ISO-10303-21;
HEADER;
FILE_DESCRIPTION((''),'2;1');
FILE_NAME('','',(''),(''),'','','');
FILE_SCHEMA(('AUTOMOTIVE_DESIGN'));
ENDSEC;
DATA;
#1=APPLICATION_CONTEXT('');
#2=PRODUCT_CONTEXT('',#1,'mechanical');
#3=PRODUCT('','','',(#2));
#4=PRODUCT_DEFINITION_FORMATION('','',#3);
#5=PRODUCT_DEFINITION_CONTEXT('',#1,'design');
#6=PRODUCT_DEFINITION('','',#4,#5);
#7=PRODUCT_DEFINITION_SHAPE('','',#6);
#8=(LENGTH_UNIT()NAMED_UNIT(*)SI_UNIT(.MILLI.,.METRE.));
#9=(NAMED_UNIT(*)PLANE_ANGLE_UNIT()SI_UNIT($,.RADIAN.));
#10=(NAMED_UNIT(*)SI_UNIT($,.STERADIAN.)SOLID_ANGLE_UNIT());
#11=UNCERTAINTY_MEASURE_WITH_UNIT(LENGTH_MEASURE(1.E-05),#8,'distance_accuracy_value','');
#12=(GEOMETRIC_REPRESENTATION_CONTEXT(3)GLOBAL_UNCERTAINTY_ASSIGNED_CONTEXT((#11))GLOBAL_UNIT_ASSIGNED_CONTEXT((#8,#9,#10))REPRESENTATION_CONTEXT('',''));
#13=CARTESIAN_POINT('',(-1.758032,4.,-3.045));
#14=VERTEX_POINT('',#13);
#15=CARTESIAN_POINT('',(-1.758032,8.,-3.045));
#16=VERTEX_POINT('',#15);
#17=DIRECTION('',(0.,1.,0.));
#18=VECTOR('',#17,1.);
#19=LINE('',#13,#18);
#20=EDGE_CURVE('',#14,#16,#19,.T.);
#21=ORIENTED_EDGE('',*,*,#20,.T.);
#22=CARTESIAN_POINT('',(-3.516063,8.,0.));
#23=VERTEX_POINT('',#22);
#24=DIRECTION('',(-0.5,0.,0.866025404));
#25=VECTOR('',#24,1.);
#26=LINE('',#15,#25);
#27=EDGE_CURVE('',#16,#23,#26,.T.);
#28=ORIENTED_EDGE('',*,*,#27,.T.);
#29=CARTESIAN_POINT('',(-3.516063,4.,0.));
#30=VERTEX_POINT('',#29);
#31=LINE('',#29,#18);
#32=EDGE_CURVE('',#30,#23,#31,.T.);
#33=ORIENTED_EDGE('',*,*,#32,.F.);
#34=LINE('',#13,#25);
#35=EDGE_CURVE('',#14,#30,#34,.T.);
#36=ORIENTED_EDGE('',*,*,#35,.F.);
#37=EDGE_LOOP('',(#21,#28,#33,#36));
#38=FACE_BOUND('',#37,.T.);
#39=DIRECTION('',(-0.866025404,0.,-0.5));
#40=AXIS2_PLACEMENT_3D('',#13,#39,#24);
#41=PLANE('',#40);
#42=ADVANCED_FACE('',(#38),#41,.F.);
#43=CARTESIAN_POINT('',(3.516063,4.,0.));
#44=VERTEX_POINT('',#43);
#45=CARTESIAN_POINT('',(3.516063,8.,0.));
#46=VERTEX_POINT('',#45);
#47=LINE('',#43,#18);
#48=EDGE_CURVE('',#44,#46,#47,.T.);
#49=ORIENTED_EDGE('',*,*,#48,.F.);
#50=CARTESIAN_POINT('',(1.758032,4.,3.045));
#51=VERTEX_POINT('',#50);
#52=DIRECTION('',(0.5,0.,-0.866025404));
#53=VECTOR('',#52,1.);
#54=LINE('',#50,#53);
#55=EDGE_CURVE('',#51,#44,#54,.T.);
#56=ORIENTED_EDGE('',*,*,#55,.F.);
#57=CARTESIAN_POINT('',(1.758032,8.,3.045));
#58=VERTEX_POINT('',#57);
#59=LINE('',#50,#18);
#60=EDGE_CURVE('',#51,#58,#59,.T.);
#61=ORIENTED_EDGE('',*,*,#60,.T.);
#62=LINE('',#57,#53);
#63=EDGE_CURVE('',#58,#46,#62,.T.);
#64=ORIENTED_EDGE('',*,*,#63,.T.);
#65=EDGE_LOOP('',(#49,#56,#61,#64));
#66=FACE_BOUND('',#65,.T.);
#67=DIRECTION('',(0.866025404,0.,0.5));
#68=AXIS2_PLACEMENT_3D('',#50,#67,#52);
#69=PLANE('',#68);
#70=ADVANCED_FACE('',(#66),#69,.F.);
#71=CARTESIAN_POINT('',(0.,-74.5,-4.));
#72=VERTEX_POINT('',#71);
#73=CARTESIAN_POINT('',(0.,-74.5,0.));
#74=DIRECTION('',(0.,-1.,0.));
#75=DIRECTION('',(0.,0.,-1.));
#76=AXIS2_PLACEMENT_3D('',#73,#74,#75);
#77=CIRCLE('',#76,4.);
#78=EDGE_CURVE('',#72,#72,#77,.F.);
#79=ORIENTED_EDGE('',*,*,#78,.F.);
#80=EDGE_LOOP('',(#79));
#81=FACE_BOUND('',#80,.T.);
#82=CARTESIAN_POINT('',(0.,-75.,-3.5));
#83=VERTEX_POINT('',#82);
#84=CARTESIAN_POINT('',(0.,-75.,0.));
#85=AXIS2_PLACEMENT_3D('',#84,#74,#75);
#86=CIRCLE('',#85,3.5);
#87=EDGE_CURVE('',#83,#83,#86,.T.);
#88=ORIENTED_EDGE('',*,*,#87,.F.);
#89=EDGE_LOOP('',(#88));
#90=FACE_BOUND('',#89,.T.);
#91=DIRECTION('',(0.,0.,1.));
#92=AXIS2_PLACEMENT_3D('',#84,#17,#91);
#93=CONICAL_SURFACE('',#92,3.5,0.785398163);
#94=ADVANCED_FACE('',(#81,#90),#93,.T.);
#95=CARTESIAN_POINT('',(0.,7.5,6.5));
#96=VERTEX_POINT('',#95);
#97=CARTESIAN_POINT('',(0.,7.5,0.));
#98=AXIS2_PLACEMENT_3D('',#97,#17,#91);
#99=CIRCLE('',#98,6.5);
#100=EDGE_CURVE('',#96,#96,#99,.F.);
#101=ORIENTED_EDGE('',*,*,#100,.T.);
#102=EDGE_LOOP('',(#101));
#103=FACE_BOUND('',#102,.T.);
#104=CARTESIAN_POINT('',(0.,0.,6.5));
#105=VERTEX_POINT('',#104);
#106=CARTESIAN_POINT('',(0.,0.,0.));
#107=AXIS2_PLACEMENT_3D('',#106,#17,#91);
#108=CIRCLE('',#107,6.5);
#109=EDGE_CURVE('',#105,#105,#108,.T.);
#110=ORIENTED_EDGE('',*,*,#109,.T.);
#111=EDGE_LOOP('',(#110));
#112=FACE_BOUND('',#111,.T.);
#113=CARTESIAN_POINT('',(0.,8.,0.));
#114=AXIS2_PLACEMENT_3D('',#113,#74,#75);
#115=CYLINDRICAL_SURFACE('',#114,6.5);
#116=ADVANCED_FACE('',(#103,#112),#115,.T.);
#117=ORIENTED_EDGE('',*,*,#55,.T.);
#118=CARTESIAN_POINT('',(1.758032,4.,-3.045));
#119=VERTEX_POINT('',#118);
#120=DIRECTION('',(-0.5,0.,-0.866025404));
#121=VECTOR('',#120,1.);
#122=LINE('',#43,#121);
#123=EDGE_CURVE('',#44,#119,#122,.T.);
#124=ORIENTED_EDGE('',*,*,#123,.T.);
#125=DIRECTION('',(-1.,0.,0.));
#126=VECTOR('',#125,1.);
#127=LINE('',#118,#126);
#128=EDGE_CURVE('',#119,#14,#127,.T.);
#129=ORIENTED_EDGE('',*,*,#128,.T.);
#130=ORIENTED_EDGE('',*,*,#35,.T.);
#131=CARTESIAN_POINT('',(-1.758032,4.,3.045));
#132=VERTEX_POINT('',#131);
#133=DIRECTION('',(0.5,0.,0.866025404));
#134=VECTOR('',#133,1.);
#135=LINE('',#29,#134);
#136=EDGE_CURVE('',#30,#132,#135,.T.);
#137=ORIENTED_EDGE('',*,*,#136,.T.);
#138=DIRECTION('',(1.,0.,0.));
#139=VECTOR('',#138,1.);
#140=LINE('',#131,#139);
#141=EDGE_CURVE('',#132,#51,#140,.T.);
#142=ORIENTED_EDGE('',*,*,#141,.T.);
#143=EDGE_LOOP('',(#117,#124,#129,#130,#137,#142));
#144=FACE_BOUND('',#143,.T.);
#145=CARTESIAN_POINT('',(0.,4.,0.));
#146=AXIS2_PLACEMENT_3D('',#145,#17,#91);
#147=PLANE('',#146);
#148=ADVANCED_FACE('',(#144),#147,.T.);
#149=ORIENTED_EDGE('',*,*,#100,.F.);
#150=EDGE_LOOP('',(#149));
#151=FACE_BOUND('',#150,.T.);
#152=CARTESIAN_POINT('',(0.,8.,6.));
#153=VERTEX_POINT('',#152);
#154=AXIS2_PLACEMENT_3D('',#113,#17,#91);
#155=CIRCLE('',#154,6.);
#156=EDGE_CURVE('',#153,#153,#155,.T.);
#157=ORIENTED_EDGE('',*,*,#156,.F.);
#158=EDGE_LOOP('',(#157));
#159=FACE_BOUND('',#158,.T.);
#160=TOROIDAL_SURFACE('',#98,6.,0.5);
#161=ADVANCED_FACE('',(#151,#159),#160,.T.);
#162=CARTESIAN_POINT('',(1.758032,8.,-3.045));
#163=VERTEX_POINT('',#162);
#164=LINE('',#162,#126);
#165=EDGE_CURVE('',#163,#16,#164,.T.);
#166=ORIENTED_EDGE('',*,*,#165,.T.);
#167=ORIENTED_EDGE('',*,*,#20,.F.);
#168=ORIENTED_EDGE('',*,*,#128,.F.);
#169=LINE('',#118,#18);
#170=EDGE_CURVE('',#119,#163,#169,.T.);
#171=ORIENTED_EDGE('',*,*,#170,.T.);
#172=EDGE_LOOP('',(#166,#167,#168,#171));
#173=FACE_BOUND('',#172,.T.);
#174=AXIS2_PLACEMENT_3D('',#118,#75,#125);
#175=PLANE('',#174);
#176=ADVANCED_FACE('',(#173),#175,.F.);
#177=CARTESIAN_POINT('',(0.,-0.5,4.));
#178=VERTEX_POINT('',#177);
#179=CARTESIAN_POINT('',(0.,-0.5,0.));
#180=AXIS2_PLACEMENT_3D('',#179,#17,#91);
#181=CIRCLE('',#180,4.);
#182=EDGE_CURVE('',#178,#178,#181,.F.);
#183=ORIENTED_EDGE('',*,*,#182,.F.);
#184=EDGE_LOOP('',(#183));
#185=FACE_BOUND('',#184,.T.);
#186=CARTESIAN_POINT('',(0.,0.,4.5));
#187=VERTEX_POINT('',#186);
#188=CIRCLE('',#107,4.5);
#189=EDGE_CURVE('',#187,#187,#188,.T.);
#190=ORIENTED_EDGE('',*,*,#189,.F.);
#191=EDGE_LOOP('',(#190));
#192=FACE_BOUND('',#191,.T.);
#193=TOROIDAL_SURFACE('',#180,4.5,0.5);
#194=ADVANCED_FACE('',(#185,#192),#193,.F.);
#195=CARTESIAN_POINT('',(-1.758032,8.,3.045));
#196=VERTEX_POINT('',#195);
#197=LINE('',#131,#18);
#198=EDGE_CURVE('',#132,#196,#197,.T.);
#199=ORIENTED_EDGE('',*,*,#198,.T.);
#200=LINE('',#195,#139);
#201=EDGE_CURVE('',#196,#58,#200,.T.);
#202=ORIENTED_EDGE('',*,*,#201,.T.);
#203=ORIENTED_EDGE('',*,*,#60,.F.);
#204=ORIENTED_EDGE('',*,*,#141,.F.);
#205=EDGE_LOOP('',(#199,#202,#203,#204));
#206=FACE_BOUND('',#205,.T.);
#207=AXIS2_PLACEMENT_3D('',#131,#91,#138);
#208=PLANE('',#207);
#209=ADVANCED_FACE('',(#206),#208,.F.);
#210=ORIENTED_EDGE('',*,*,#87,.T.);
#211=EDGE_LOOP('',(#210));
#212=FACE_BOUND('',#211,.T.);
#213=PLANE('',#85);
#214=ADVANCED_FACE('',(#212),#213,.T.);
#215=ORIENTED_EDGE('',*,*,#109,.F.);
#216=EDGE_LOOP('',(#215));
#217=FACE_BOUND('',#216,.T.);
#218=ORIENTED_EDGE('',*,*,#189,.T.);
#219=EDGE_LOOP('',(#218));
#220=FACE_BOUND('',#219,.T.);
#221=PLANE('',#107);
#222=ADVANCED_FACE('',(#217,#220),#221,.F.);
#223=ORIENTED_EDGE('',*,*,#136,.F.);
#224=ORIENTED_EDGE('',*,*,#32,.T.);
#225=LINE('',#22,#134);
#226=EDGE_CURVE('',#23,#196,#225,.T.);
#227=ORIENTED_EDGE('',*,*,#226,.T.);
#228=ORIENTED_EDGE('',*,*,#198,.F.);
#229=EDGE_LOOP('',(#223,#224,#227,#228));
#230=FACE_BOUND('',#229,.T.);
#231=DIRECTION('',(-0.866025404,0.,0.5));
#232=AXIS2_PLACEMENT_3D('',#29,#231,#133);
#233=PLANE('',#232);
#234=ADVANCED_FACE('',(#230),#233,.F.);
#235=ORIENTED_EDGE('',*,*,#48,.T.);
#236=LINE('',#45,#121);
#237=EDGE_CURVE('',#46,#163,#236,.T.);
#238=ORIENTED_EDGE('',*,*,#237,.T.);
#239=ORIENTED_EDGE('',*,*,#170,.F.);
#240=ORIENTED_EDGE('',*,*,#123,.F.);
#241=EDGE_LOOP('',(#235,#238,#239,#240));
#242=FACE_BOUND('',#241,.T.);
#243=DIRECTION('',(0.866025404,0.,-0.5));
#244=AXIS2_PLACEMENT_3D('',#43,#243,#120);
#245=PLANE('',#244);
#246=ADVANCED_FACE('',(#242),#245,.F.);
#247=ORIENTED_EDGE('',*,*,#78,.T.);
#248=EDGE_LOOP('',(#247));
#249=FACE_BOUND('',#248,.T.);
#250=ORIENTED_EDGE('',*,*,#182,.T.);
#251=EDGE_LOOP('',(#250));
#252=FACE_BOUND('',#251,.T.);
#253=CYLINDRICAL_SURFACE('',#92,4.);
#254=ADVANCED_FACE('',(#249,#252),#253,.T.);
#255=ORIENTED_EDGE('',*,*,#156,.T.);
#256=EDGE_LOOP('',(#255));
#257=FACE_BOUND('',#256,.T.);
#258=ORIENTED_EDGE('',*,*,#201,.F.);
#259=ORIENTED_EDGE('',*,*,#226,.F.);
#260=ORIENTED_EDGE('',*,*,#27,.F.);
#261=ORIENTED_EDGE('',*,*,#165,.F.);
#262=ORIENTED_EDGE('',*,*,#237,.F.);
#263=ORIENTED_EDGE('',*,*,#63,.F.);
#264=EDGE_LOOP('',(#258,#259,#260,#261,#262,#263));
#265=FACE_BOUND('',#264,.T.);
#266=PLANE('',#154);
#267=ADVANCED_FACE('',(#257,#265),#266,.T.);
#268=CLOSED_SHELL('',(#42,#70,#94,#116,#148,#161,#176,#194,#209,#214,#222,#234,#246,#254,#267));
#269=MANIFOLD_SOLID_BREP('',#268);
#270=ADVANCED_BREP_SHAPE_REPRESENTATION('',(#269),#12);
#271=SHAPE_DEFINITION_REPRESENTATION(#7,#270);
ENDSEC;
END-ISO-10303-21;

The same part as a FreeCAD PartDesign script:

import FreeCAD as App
import Part
import Sketcher
from FreeCAD import Vector
Q = App.Units.Quantity


def edges_at(feature, points):
    """Names of the edges that pass closest to the given points."""
    edges = feature.Shape.Edges
    near = lambda p: min(range(len(edges)), key=lambda i: edges[i].distToShape(Part.Vertex(*p))[0])
    return sorted({f"Edge{near(p) + 1}" for p in points})

doc = App.newDocument("Part")
body = doc.addObject("PartDesign::Body", "Body")

# Sketch on XZ plane
sketch1 = body.newObject("Sketcher::SketchObject", "Sketch")
sketch1.AttachmentSupport = (doc.getObject("XZ_Plane"), [""])
sketch1.MapMode = "FlatFace"
sketch1.addGeometry(Part.Circle(Vector(0, 0, 0), Vector(0, 0, 1), 6), False)
sketch1.addConstraint(Sketcher.Constraint("Coincident", 0, 3, -1, 1))
sketch1.addConstraint(Sketcher.Constraint("Diameter", 0, Q("13 mm")))
pad1 = body.newObject("PartDesign::Pad", "Pad")
pad1.Profile = sketch1
pad1.Length = 8
pad1.Reversed = True

# Sketch on XZ plane
sketch2 = body.newObject("Sketcher::SketchObject", "Sketch001")
sketch2.AttachmentSupport = (doc.getObject("XZ_Plane"), [""])
sketch2.MapMode = "FlatFace"
sketch2.AttachmentOffset = App.Placement(Vector(0, 0, -8), App.Rotation())
sketch2.addGeometry(Part.LineSegment(Vector(3.5, 0, 0), Vector(1.8, -3, 0)), False)
sketch2.addGeometry(Part.LineSegment(Vector(1.8, -3, 0), Vector(-1.8, -3, 0)), False)
sketch2.addGeometry(Part.LineSegment(Vector(-1.8, -3, 0), Vector(-3.5, 0, 0)), False)
sketch2.addGeometry(Part.LineSegment(Vector(-3.5, 0, 0), Vector(-1.8, 3, 0)), False)
sketch2.addGeometry(Part.LineSegment(Vector(-1.8, 3, 0), Vector(1.8, 3, 0)), False)
sketch2.addGeometry(Part.LineSegment(Vector(1.8, 3, 0), Vector(3.5, 0, 0)), False)
sketch2.addConstraint(Sketcher.Constraint("Coincident", 0, 2, 1, 1))
sketch2.addConstraint(Sketcher.Constraint("Coincident", 1, 2, 2, 1))
sketch2.addConstraint(Sketcher.Constraint("Coincident", 2, 2, 3, 1))
sketch2.addConstraint(Sketcher.Constraint("Coincident", 3, 2, 4, 1))
sketch2.addConstraint(Sketcher.Constraint("Coincident", 4, 2, 5, 1))
sketch2.addConstraint(Sketcher.Constraint("Coincident", 5, 2, 0, 1))
sketch2.addConstraint(Sketcher.Constraint("Horizontal", 1))
sketch2.addConstraint(Sketcher.Constraint("Horizontal", 4))
sketch2.addConstraint(Sketcher.Constraint("Symmetric", 0, 2, 3, 2, -1, 1))
sketch2.addConstraint(Sketcher.Constraint("Symmetric", 2, 2, 5, 2, -1, 1))
sketch2.addConstraint(Sketcher.Constraint("PointOnObject", 2, 2, -1))
sketch2.addConstraint(Sketcher.Constraint("Parallel", 2, 5))
sketch2.addConstraint(Sketcher.Constraint("Vertical", 1, 2, 3, 2))
sketch2.addConstraint(Sketcher.Constraint("Angle", 0, Q("-120 deg")))
sketch2.addConstraint(Sketcher.Constraint("DistanceY", 1, 2, 3, 2, Q("6.09 mm")))
sketch2.addConstraint(Sketcher.Constraint("DistanceX", 1, 2, 1, 1, Q("3.516063 mm")))
pocket1 = body.newObject("PartDesign::Pocket", "Pocket")
pocket1.Profile = sketch2
pocket1.Length = 4
pocket1.Reversed = True
doc.recompute()

fillet = body.newObject("PartDesign::Fillet", "Fillet")
fillet.Base = (pocket1, edges_at(pocket1, [(0, 8, -6.5)]))
fillet.Radius = 0.5

# Sketch on XZ plane
sketch3 = body.newObject("Sketcher::SketchObject", "Sketch002")
sketch3.AttachmentSupport = (doc.getObject("XZ_Plane"), [""])
sketch3.MapMode = "FlatFace"
sketch3.addGeometry(Part.Circle(Vector(0, 0, 0), Vector(0, 0, 1), 4), False)
sketch3.addConstraint(Sketcher.Constraint("Coincident", 0, 3, -1, 1))
sketch3.addConstraint(Sketcher.Constraint("Diameter", 0, Q("8 mm")))
pad2 = body.newObject("PartDesign::Pad", "Pad001")
pad2.Profile = sketch3
pad2.Length = 75
doc.recompute()

fillet2 = body.newObject("PartDesign::Fillet", "Fillet001")
fillet2.Base = (pad2, edges_at(pad2, [(0, 0, -4)]))
fillet2.Radius = 0.5
doc.recompute()

chamfer = body.newObject("PartDesign::Chamfer", "Chamfer")
chamfer.Base = (fillet2, edges_at(fillet2, [(0, -75, -4)]))
chamfer.Size = 0.5

doc.recompute()
